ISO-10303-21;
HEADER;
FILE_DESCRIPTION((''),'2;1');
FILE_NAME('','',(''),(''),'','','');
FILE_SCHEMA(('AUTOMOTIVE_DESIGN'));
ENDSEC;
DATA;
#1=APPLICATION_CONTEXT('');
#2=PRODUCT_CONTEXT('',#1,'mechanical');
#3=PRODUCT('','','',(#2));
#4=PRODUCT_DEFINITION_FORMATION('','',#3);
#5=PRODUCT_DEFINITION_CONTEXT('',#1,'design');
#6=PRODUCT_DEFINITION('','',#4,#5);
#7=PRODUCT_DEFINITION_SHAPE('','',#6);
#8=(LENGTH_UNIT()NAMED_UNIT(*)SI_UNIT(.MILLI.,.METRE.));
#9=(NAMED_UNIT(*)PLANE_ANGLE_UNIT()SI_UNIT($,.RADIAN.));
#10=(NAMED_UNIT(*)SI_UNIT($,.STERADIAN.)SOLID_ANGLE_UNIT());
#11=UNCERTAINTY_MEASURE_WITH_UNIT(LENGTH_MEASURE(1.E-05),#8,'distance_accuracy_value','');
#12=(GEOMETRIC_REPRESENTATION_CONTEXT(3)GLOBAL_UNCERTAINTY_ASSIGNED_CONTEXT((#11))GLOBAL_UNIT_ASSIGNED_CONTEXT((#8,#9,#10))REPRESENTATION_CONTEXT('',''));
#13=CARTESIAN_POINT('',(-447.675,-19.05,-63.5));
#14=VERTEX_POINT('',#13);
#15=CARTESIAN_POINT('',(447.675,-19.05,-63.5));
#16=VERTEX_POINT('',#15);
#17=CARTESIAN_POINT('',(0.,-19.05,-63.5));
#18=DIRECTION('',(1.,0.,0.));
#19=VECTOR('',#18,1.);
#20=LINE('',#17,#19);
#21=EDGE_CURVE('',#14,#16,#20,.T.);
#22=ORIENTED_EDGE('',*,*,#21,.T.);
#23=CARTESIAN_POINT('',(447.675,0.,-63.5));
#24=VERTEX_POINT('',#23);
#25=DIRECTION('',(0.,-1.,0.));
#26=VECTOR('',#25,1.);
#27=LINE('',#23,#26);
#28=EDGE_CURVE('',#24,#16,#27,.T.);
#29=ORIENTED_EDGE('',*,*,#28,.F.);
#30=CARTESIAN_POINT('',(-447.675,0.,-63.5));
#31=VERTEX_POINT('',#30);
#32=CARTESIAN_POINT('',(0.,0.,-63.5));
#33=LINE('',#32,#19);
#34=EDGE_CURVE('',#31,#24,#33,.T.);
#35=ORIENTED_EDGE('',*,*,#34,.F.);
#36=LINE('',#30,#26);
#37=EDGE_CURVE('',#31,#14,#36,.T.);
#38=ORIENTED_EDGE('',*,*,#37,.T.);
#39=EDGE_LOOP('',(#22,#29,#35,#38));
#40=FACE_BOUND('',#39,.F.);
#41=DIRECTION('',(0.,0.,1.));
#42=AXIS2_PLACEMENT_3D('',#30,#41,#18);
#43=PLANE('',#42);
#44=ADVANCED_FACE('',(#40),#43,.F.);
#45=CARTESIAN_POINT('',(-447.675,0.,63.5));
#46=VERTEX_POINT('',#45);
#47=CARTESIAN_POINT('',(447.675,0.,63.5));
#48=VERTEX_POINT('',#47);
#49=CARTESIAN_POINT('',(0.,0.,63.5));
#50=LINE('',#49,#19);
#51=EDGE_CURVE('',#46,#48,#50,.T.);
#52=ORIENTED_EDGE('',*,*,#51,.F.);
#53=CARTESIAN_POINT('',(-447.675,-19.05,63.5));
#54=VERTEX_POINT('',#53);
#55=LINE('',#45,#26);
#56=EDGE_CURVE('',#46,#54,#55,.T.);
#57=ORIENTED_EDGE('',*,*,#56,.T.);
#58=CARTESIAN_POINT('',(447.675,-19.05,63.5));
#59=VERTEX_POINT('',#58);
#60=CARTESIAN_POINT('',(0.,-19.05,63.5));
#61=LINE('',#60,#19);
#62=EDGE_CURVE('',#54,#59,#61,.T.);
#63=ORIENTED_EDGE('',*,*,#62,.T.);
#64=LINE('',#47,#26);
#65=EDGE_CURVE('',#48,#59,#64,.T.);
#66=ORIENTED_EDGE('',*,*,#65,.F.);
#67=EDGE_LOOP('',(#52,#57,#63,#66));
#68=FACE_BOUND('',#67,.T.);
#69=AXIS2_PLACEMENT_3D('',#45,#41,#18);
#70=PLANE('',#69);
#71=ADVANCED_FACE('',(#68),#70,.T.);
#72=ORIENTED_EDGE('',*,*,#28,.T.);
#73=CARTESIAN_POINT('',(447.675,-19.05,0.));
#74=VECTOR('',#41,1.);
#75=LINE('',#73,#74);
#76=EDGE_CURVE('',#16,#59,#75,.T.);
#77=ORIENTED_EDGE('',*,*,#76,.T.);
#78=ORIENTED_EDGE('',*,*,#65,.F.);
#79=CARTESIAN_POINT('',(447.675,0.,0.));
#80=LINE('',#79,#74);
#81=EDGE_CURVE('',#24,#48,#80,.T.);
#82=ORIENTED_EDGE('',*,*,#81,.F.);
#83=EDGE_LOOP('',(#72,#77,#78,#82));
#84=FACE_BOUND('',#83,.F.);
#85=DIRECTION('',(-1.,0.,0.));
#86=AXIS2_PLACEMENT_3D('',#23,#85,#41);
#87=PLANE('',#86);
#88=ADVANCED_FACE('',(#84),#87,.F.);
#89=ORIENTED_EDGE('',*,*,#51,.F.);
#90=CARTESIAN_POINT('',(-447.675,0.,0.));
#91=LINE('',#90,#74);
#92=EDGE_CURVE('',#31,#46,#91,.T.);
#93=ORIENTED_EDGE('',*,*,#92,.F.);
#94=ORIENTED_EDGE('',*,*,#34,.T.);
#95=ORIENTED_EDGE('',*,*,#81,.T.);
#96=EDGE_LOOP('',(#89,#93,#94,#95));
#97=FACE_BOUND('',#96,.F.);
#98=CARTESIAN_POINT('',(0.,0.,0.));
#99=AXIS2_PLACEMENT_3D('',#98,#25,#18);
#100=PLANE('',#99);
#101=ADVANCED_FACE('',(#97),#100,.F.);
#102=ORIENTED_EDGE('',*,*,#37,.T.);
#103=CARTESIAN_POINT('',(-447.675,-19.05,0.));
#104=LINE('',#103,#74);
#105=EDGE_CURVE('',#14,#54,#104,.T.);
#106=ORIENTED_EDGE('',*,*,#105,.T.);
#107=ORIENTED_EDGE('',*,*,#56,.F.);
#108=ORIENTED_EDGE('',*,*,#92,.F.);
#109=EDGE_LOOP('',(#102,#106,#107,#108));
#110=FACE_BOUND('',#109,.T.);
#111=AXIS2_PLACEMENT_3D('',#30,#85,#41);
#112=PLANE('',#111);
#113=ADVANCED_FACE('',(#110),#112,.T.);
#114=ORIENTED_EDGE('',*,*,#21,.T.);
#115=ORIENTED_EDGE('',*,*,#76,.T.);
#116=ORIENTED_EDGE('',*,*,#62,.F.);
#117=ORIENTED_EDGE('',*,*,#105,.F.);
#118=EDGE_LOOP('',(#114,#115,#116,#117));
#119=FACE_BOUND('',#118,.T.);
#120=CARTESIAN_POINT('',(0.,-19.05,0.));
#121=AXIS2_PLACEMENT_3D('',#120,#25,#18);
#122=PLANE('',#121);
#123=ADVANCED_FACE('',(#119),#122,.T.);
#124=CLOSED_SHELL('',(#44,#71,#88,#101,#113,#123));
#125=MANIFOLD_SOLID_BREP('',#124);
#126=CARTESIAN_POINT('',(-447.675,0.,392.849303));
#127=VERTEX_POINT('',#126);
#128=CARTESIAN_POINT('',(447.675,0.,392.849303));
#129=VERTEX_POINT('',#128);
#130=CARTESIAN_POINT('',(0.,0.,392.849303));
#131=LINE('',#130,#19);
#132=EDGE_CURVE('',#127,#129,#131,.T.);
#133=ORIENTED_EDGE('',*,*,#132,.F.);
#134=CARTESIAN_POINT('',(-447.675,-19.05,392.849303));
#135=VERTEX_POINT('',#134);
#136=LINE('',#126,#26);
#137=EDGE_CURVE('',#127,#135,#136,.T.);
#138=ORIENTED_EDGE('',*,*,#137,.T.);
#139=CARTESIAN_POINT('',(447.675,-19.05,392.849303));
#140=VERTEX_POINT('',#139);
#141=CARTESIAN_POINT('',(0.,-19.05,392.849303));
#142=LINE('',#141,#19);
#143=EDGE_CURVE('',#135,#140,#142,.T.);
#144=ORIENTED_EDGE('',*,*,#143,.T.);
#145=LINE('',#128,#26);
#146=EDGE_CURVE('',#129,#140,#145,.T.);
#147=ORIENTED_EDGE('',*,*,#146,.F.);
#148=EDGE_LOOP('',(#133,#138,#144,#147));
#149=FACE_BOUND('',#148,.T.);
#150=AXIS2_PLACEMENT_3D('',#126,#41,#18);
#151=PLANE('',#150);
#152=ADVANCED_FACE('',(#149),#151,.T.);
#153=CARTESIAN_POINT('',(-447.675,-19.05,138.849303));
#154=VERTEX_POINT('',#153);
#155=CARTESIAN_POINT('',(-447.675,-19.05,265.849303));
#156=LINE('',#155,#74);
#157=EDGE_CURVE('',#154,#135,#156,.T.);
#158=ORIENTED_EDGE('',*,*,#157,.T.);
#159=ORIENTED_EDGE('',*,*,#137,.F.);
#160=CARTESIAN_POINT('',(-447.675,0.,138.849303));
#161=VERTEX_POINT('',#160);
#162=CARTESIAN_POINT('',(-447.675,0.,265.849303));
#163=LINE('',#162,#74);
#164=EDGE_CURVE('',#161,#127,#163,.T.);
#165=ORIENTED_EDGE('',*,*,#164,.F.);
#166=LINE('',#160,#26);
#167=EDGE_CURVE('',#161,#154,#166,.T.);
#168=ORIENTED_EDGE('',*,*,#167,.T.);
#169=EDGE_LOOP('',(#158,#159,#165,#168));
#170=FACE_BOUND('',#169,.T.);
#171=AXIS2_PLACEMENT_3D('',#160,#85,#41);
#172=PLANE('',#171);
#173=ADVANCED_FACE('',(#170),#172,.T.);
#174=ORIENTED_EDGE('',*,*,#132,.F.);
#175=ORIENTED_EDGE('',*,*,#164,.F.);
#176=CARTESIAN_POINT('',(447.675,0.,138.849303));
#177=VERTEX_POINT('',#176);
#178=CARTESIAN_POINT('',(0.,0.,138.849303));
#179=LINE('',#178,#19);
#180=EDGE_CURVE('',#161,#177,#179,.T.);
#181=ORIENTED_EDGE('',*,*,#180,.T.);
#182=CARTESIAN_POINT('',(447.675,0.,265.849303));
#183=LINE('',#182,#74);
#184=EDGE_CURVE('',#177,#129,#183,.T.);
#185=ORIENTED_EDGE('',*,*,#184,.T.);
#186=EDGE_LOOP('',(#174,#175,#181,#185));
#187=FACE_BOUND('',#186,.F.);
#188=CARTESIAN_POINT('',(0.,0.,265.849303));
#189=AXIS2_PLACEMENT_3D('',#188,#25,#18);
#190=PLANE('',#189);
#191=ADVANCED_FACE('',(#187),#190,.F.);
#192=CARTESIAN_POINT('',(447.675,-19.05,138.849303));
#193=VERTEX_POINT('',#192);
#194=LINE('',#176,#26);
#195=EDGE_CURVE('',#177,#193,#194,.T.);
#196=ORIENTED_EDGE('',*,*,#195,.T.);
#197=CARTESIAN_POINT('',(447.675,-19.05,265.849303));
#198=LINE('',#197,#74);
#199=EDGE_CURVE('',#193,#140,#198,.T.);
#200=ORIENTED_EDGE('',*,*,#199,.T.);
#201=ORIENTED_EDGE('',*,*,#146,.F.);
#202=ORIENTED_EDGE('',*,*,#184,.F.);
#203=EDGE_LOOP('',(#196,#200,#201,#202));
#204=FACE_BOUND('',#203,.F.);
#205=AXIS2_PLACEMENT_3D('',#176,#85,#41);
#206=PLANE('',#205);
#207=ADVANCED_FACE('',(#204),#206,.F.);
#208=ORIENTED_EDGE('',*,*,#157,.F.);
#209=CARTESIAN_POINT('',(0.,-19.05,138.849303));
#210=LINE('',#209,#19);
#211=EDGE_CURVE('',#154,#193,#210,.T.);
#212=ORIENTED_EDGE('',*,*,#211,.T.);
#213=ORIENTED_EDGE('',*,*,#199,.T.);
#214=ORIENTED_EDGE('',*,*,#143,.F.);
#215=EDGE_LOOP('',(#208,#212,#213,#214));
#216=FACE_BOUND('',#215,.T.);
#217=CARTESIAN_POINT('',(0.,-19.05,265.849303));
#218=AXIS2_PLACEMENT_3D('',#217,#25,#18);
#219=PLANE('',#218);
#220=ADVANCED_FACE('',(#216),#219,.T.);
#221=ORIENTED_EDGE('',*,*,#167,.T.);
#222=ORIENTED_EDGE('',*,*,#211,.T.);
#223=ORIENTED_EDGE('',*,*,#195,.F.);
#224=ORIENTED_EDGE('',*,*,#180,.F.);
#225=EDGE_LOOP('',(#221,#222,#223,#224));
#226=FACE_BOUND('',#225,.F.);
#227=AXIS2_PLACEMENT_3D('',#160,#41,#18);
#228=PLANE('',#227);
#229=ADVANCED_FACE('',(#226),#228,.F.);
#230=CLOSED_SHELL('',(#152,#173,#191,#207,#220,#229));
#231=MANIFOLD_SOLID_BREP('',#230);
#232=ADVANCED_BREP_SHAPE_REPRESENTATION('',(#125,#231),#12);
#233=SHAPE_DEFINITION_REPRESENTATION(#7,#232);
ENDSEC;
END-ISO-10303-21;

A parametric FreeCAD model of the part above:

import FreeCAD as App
import Part
import Sketcher
from FreeCAD import Vector
Q = App.Units.Quantity


def add_polygon(sketch, points):
    """Adds a closed chain of lines whose ends are joined by coincident constraints."""
    first, n = sketch.GeometryCount, len(points)
    for a, b in zip(points, points[1:] + points[:1]):
        sketch.addGeometry(Part.LineSegment(App.Vector(*a, 0), App.Vector(*b, 0)), False)
    for i in range(n):
        sketch.addConstraint(Sketcher.Constraint("Coincident", first + i, 2, first + (i + 1) % n, 1))

doc = App.newDocument("Part")
params = doc.addObject("Spreadsheet::Sheet", "Params")
for row, (alias, value) in enumerate([
    ("sketch1_height", "10 in"),
    ("sketch1_height2", "5 in"),
    ("sketch1_width", "35.25 in"),
    ("pad1_length", "0.75 in"),
], start=1):
    params.set(f"A{row}", alias)
    params.set(f"B{row}", "=" + value)
    params.setAlias(f"B{row}", alias)

body = doc.addObject("PartDesign::Body", "Body")
body.AllowCompound = True

# Sketch on XZ plane
sketch1 = body.newObject("Sketcher::SketchObject", "Sketch")
sketch1.AttachmentSupport = (doc.getObject("XZ_Plane"), [""])
sketch1.MapMode = "FlatFace"
add_polygon(sketch1, [(-447.675, 392.849303), (-447.675, 138.849303), (447.675, 138.849303), (447.675, 392.849303)])  # lines 0-3
add_polygon(sketch1, [(-447.675, 63.5), (-447.675, -63.5), (447.675, -63.5), (447.675, 63.5)])  # lines 4-7
sketch1.addConstraint([
    Sketcher.Constraint("Vertical", 0),
    Sketcher.Constraint("Horizontal", 1),
    Sketcher.Constraint("Vertical", 2),
    Sketcher.Constraint("Horizontal", 3),
    Sketcher.Constraint("Vertical", 4),
    Sketcher.Constraint("Horizontal", 5),
    Sketcher.Constraint("Vertical", 6),
    Sketcher.Constraint("Horizontal", 7),
    Sketcher.Constraint("Symmetric", 4, 2, 6, 2, -1, 1),
    Sketcher.Constraint("Vertical", 3, 2, 4, 2),
    Sketcher.Constraint("Vertical", 2, 2, 5, 2),
    Sketcher.Constraint("DistanceY", 0, 2, 0, 1, Q("10 in")),
    Sketcher.Constraint("DistanceY", 4, 2, 4, 1, Q("5 in")),
    Sketcher.Constraint("DistanceX", 1, 1, 1, 2, Q("35.25 in")),
    Sketcher.Constraint("DistanceY", -1, 1, 0, 2, 138.849303),
])
sketch1.setExpression("Constraints[19]", "Params.sketch1_height")
sketch1.setExpression("Constraints[20]", "Params.sketch1_height2")
sketch1.setExpression("Constraints[21]", "Params.sketch1_width")
pad1 = body.newObject("PartDesign::Pad", "Pad")
pad1.Profile = sketch1
pad1.setExpression("Length", "Params.pad1_length")

doc.recompute()
